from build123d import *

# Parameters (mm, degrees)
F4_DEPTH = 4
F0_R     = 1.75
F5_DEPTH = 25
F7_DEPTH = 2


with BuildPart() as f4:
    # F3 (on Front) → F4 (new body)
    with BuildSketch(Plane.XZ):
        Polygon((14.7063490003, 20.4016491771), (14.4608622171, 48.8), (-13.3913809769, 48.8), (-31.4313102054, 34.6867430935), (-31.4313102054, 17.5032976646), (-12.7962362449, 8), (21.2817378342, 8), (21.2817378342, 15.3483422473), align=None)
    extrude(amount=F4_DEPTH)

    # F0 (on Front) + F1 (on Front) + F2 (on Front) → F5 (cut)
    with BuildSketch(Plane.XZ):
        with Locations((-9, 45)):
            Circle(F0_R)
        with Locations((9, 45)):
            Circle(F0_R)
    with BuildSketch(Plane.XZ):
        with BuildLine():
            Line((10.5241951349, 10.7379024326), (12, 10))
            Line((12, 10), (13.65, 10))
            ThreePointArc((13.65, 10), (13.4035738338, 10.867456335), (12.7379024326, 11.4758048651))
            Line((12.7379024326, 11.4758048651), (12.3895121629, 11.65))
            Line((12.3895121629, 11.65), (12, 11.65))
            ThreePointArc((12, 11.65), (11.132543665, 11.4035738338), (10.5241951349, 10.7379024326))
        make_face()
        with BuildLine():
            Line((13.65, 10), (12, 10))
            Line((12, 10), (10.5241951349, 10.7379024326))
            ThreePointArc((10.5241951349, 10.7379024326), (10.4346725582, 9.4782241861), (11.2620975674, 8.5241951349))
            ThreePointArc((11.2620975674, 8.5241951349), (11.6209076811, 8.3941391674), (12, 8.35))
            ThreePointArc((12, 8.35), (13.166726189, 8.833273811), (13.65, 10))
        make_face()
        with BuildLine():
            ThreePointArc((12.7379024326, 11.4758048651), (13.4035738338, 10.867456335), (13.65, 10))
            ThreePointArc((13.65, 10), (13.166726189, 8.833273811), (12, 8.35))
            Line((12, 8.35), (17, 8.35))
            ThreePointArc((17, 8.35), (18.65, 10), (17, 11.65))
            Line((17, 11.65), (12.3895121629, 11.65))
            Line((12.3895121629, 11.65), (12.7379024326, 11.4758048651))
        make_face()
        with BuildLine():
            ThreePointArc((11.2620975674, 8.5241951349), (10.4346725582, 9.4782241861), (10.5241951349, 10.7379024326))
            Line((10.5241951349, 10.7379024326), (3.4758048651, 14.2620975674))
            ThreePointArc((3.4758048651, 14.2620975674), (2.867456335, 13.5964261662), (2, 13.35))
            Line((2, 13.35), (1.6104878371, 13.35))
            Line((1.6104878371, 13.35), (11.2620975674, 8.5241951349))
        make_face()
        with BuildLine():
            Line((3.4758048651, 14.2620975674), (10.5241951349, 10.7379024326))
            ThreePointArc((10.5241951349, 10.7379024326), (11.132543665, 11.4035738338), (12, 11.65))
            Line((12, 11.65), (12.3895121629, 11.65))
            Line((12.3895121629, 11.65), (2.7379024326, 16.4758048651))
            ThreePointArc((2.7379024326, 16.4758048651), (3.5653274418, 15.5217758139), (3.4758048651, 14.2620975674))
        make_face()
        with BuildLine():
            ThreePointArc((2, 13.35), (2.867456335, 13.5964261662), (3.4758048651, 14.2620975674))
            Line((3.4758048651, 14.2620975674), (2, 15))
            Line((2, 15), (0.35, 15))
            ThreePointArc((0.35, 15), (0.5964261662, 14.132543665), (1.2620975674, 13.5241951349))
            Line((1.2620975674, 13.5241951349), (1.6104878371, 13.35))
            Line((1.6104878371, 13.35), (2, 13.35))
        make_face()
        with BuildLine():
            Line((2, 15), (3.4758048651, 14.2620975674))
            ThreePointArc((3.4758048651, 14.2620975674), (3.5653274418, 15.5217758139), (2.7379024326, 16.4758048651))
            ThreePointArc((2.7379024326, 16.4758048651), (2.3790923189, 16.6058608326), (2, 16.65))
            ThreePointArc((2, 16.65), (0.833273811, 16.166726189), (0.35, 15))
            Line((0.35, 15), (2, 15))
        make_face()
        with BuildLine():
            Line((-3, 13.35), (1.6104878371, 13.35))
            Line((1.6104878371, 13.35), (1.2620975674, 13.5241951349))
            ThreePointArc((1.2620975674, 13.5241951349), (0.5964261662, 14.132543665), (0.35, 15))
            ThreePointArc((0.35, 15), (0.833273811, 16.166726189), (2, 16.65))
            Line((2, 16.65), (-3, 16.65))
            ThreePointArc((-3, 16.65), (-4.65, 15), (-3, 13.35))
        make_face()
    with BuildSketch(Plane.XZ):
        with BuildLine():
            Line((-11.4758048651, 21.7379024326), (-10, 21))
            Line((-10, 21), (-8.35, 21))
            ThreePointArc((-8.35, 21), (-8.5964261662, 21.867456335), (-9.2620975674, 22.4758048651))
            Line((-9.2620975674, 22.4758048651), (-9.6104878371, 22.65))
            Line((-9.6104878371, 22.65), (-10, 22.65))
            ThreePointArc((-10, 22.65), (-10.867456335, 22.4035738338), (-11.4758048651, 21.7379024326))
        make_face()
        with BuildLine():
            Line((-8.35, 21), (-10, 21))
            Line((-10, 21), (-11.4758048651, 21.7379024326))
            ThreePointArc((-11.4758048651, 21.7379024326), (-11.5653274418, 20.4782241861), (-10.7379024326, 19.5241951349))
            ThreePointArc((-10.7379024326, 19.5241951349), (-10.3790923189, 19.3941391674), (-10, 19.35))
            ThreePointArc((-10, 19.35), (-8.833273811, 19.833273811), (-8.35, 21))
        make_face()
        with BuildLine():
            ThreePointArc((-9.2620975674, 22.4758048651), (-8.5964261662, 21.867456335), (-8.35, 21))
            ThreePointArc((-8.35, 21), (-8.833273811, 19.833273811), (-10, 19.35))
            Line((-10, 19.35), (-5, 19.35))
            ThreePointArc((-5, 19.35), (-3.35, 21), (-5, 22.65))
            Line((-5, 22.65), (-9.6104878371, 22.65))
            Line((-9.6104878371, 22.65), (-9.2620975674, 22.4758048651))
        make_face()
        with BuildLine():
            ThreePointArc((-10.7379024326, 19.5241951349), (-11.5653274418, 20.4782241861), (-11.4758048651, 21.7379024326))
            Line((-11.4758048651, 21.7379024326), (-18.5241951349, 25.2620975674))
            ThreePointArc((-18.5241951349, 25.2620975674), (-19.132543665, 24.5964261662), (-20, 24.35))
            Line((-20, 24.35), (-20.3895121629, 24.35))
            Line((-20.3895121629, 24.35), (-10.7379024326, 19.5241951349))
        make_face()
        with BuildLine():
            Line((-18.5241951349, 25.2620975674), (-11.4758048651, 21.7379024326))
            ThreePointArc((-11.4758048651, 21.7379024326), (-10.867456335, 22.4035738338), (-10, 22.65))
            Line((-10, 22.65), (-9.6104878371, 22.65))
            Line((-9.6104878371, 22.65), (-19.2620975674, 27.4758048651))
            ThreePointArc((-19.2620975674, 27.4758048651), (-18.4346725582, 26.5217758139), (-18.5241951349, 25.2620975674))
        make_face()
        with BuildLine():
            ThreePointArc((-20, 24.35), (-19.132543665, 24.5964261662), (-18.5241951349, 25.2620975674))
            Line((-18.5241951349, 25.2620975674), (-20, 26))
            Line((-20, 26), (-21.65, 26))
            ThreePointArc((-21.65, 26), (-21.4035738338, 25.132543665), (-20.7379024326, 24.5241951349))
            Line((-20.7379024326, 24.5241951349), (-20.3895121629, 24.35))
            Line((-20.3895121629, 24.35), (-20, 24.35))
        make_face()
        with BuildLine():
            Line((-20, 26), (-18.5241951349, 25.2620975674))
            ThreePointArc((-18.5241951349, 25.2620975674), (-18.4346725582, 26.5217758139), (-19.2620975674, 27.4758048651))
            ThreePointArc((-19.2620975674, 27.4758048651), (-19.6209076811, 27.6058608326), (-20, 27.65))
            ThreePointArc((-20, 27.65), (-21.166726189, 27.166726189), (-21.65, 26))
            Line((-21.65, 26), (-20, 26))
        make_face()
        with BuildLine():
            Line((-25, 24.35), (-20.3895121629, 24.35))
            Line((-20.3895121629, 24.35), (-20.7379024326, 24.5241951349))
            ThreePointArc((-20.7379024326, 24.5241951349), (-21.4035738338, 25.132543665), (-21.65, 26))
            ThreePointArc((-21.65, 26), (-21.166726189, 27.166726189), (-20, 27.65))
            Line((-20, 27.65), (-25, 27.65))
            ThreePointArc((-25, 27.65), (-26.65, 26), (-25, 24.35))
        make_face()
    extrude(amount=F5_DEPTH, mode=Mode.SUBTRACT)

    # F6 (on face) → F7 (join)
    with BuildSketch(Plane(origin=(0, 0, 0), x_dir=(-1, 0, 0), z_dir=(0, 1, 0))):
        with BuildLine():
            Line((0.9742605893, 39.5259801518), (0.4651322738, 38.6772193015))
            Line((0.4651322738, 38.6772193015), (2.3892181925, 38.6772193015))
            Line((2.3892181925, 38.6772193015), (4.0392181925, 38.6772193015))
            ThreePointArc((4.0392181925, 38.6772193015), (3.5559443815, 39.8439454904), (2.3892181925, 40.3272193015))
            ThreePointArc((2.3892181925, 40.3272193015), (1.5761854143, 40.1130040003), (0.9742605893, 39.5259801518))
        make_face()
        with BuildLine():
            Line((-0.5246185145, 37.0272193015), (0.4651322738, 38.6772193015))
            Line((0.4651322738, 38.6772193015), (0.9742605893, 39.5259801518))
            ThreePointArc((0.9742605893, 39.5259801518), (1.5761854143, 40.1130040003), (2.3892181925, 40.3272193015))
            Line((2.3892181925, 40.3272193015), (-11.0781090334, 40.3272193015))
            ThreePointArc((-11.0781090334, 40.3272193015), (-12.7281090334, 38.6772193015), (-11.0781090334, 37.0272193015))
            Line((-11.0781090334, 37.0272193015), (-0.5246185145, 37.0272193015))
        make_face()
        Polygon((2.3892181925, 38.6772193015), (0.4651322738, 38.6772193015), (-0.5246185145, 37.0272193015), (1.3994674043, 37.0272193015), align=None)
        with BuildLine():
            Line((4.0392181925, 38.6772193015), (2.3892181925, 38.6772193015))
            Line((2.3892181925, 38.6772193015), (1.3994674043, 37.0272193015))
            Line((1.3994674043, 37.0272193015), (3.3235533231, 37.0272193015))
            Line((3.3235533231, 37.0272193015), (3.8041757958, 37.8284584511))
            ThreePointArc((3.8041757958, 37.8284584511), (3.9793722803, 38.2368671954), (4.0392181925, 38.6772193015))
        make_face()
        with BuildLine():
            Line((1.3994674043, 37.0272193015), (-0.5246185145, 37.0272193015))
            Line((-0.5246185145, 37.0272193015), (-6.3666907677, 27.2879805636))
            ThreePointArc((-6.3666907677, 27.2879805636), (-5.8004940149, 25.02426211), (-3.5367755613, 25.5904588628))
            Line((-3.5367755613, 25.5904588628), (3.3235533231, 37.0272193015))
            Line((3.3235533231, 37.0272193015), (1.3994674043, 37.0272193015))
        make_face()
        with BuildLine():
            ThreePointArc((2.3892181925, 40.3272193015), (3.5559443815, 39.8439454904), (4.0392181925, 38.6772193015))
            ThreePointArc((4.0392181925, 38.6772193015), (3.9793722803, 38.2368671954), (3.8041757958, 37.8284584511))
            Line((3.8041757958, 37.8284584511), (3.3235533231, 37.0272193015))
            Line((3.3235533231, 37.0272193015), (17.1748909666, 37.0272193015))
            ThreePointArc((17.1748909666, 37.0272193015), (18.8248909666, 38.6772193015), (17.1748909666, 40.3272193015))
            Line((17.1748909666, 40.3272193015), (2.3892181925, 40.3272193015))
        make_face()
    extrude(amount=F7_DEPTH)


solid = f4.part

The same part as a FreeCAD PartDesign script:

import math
import FreeCAD as App
import Part
import Sketcher

V = App.Vector
Q = App.Units.Quantity

doc = App.newDocument("Part")
body = doc.addObject("PartDesign::Body", "Body")

# Sketch on XZ plane
sketch1 = doc.addObject("Sketcher::SketchObject", "Sketch")
body.addObject(sketch1)
sketch1.AttachmentSupport = (doc.XZ_Plane, [""])
sketch1.MapMode = "FlatFace"
sketch1.addGeometry([
    Part.LineSegment(V(15, 20, 0), V(14, 49, 0)),  # 0
    Part.LineSegment(V(14, 49, 0), V(-13, 49, 0)),  # 1
    Part.LineSegment(V(-13, 49, 0), V(-31, 35, 0)),  # 2
    Part.LineSegment(V(-31, 35, 0), V(-31, 18, 0)),  # 3
    Part.LineSegment(V(-31, 18, 0), V(-13, 8, 0)),  # 4
    Part.LineSegment(V(-13, 8, 0), V(21, 8, 0)),  # 5
    Part.LineSegment(V(21, 8, 0), V(21, 15, 0)),  # 6
    Part.LineSegment(V(21, 15, 0), V(15, 20, 0)),  # 7
], False)
sketch1.addConstraint([
    Sketcher.Constraint("Coincident", 0, 2, 1, 1),
    Sketcher.Constraint("Coincident", 1, 2, 2, 1),
    Sketcher.Constraint("Coincident", 2, 2, 3, 1),
    Sketcher.Constraint("Coincident", 3, 2, 4, 1),
    Sketcher.Constraint("Coincident", 4, 2, 5, 1),
    Sketcher.Constraint("Coincident", 5, 2, 6, 1),
    Sketcher.Constraint("Coincident", 6, 2, 7, 1),
    Sketcher.Constraint("Coincident", 7, 2, 0, 1),
    Sketcher.Constraint("Horizontal", 1),
    Sketcher.Constraint("Vertical", 3),
    Sketcher.Constraint("Horizontal", 5),
    Sketcher.Constraint("Vertical", 6),
    Sketcher.Constraint("DistanceY", -1, 1, 4, 2, Q("8 mm")),
    Sketcher.Constraint("DistanceY", -1, 1, 0, 2, Q("48.8 mm")),
    Sketcher.Constraint("DistanceX", 4, 2, 0, 2, Q("27.257098 mm")),
    Sketcher.Constraint("Distance", 0, Q("28.399412 mm")),
    Sketcher.Constraint("Distance", 2, Q("22.904652 mm")),
    Sketcher.Constraint("Distance", 4, Q("20.918381 mm")),
    Sketcher.Constraint("DistanceX", 1, 2, 1, 1, Q("27.852243 mm")),
    Sketcher.Constraint("DistanceX", 5, 1, 5, 2, Q("34.077974 mm")),
    Sketcher.Constraint("DistanceY", 3, 2, 3, 1, Q("17.183445 mm")),
    Sketcher.Constraint("DistanceY", 6, 1, 6, 2, Q("7.348342 mm")),
    Sketcher.Constraint("DistanceX", 1, 2, -1, 1, Q("13.391381 mm")),
    Sketcher.Constraint("DistanceX", -1, 1, 7, 2, Q("14.706349 mm")),
])
pad1 = doc.addObject("PartDesign::Pad", "Pad")
body.addObject(pad1)
pad1.Profile = sketch1
pad1.Length = 4

# Sketch on XZ plane
sketch2 = doc.addObject("Sketcher::SketchObject", "Sketch001")
body.addObject(sketch2)
sketch2.AttachmentSupport = (doc.XZ_Plane, [""])
sketch2.MapMode = "FlatFace"
sketch2.addGeometry([
    Part.Circle(V(-9, 45, 0), V(0, 0, 1), 1.8),  # 0
    Part.Circle(V(9, 45, 0), V(0, 0, 1), 1.8),  # 1
    Part.LineSegment(V(1.6, 13.3, 0), V(11.3, 8.5, 0)),  # 2
    Part.ArcOfCircle(Part.Circle(V(12, 10, 0), V(0, 0, 1), 1.6), math.radians(-117), math.radians(-90)),  # 3
    Part.LineSegment(V(12, 8.3, 0), V(17, 8.3, 0)),  # 4
    Part.ArcOfCircle(Part.Circle(V(17, 10, 0), V(0, 0, 1), 1.6), math.radians(-90), math.radians(90)),  # 5
    Part.LineSegment(V(17, 11.7, 0), V(12.4, 11.7, 0)),  # 6
    Part.LineSegment(V(12.4, 11.7, 0), V(2.7, 16.5, 0)),  # 7
    Part.ArcOfCircle(Part.Circle(V(2, 15, 0), V(0, 0, 1), 1.6), math.radians(63), math.radians(90)),  # 8
    Part.LineSegment(V(2, 16.6, 0), V(-3, 16.6, 0)),  # 9
    Part.ArcOfCircle(Part.Circle(V(-3, 15, 0), V(0, 0, 1), 1.6), math.radians(90), math.radians(270)),  # 10
    Part.LineSegment(V(-3, 13.3, 0), V(1.6, 13.3, 0)),  # 11
    Part.LineSegment(V(-20.4, 24.4, 0), V(-10.7, 19.5, 0)),  # 12
    Part.ArcOfCircle(Part.Circle(V(-10, 21, 0), V(0, 0, 1), 1.6), math.radians(-117), math.radians(-90)),  # 13
    Part.LineSegment(V(-10, 19.4, 0), V(-5, 19.4, 0)),  # 14
    Part.ArcOfCircle(Part.Circle(V(-5, 21, 0), V(0, 0, 1), 1.6), math.radians(-90), math.radians(90)),  # 15
    Part.LineSegment(V(-5, 22.6, 0), V(-9.6, 22.6, 0)),  # 16
    Part.LineSegment(V(-9.6, 22.6, 0), V(-19.3, 27.5, 0)),  # 17
    Part.ArcOfCircle(Part.Circle(V(-20, 26, 0), V(0, 0, 1), 1.6), math.radians(63), math.radians(90)),  # 18
    Part.LineSegment(V(-20, 27.6, 0), V(-25, 27.6, 0)),  # 19
    Part.ArcOfCircle(Part.Circle(V(-25, 26, 0), V(0, 0, 1), 1.6), math.radians(90), math.radians(270)),  # 20
    Part.LineSegment(V(-25, 24.4, 0), V(-20.4, 24.4, 0)),  # 21
], False)
sketch2.addConstraint([
    Sketcher.Constraint("Tangent", 2, 2, 3, 1),
    Sketcher.Constraint("Tangent", 3, 2, 4, 1),
    Sketcher.Constraint("Tangent", 4, 2, 5, 1),
    Sketcher.Constraint("Tangent", 5, 2, 6, 1),
    Sketcher.Constraint("Coincident", 6, 2, 7, 1),
    Sketcher.Constraint("Tangent", 7, 2, 8, 1),
    Sketcher.Constraint("Tangent", 8, 2, 9, 1),
    Sketcher.Constraint("Tangent", 9, 2, 10, 1),
    Sketcher.Constraint("Tangent", 10, 2, 11, 1),
    Sketcher.Constraint("Coincident", 11, 2, 2, 1),
    Sketcher.Constraint("Tangent", 12, 2, 13, 1),
    Sketcher.Constraint("Tangent", 13, 2, 14, 1),
    Sketcher.Constraint("Tangent", 14, 2, 15, 1),
    Sketcher.Constraint("Tangent", 15, 2, 16, 1),
    Sketcher.Constraint("Coincident", 16, 2, 17, 1),
    Sketcher.Constraint("Tangent", 17, 2, 18, 1),
    Sketcher.Constraint("Tangent", 18, 2, 19, 1),
    Sketcher.Constraint("Tangent", 19, 2, 20, 1),
    Sketcher.Constraint("Tangent", 20, 2, 21, 1),
    Sketcher.Constraint("Coincident", 21, 2, 12, 1),
    Sketcher.Constraint("Horizontal", 4),
    Sketcher.Constraint("Horizontal", 6),
    Sketcher.Constraint("Horizontal", 9),
    Sketcher.Constraint("Horizontal", 11),
    Sketcher.Constraint("Horizontal", 14),
    Sketcher.Constraint("Horizontal", 16),
    Sketcher.Constraint("Horizontal", 19),
    Sketcher.Constraint("Horizontal", 21),
    Sketcher.Constraint("Equal", 0, 1),
    Sketcher.Constraint("Equal", 3, 5),
    Sketcher.Constraint("Equal", 5, 8),
    Sketcher.Constraint("Equal", 8, 10),
    Sketcher.Constraint("Equal", 10, 13),
    Sketcher.Constraint("Equal", 13, 15),
    Sketcher.Constraint("Equal", 15, 18),
    Sketcher.Constraint("Equal", 18, 20),
    Sketcher.Constraint("Symmetric", 0, 3, 1, 3, -2),
    Sketcher.Constraint("Parallel", 2, 7),
    Sketcher.Constraint("Parallel", 7, 12),
    Sketcher.Constraint("Parallel", 12, 17),
    Sketcher.Constraint("Equal", 4, 9),
    Sketcher.Constraint("Equal", 9, 14),
    Sketcher.Constraint("Equal", 11, 16),
    Sketcher.Constraint("Equal", 14, 19),
    Sketcher.Constraint("Equal", 7, 12),
    Sketcher.Constraint("Diameter", 0, Q("3.5 mm")),
    Sketcher.Constraint("DistanceX", 4, 1, 4, 2, Q("5 mm")),
    Sketcher.Constraint("Radius", 3, Q("1.65 mm")),
    Sketcher.Constraint("DistanceX", 0, 3, -1, 1, Q("9 mm")),
    Sketcher.Constraint("DistanceY", -1, 1, 0, 3, Q("45 mm")),
    Sketcher.Constraint("DistanceX", -1, 1, 3, 3, Q("12 mm")),
    Sketcher.Constraint("DistanceY", -1, 1, 3, 3, Q("10 mm")),
    Sketcher.Constraint("DistanceX", -1, 1, 8, 3, Q("2 mm")),
    Sketcher.Constraint("DistanceY", -1, 1, 8, 3, Q("15 mm")),
    Sketcher.Constraint("DistanceX", 13, 3, -1, 1, Q("10 mm")),
    Sketcher.Constraint("DistanceY", -1, 1, 13, 3, Q("21 mm")),
    Sketcher.Constraint("DistanceX", 6, 2, 6, 1, Q("4.610488 mm")),
])
pocket1 = doc.addObject("PartDesign::Pocket", "Pocket")
body.addObject(pocket1)
pocket1.Profile = sketch2
pocket1.Length = 25
pocket1.Reversed = True

# Sketch on XZ plane
sketch3 = doc.addObject("Sketcher::SketchObject", "Sketch002")
body.addObject(sketch3)
sketch3.AttachmentSupport = (doc.XZ_Plane, [""])
sketch3.MapMode = "FlatFace"
sketch3.addGeometry([
    Part.ArcOfCircle(Part.Circle(V(11.1, 38.7, 0), V(0, 0, 1), 1.6), math.radians(-90), math.radians(90)),  # 0
    Part.LineSegment(V(11.1, 37, 0), V(0.5, 37, 0)),  # 1
    Part.LineSegment(V(0.5, 37, 0), V(6.4, 27.3, 0)),  # 2
    Part.ArcOfCircle(Part.Circle(V(5, 26.4, 0), V(0, 0, 1), 1.6), math.radians(-149), math.radians(31)),  # 3
    Part.LineSegment(V(3.5, 25.6, 0), V(-3.3, 37, 0)),  # 4
    Part.LineSegment(V(-3.3, 37, 0), V(-17.2, 37, 0)),  # 5
    Part.ArcOfCircle(Part.Circle(V(-17.2, 38.7, 0), V(0, 0, 1), 1.6), math.radians(90), math.radians(270)),  # 6
    Part.LineSegment(V(-17.2, 40.3, 0), V(11.1, 40.3, 0)),  # 7
], False)
sketch3.addConstraint([
    Sketcher.Constraint("Tangent", 0, 1, 1, 1),
    Sketcher.Constraint("Coincident", 1, 2, 2, 1),
    Sketcher.Constraint("Tangent", 2, 2, 3, 2),
    Sketcher.Constraint("Tangent", 3, 1, 4, 1),
    Sketcher.Constraint("Coincident", 4, 2, 5, 1),
    Sketcher.Constraint("Tangent", 5, 2, 6, 2),
    Sketcher.Constraint("Tangent", 6, 1, 7, 1),
    Sketcher.Constraint("Tangent", 7, 2, 0, 2),
    Sketcher.Constraint("Horizontal", 1),
    Sketcher.Constraint("Horizontal", 5),
    Sketcher.Constraint("Horizontal", 7),
    Sketcher.Constraint("Equal", 0, 3),
    Sketcher.Constraint("Equal", 3, 6),
    Sketcher.Constraint("Parallel", 2, 4),
    Sketcher.Constraint("Radius", 0, Q("1.65 mm")),
    Sketcher.Constraint("DistanceX", 7, 1, 7, 2, Q("28.253 mm")),
    Sketcher.Constraint("DistanceY", 3, 3, 0, 3, Q("12.238 mm")),
    Sketcher.Constraint("DistanceX", 1, 2, 1, 1, Q("10.553491 mm")),
    Sketcher.Constraint("Distance", 2, Q("11.35705 mm")),
    Sketcher.Constraint("DistanceX", -1, 1, 0, 3, Q("11.078109 mm")),
    Sketcher.Constraint("DistanceY", -1, 1, 0, 3, Q("38.677219 mm")),
])
pad2 = doc.addObject("PartDesign::Pad", "Pad001")
body.addObject(pad2)
pad2.Profile = sketch3
pad2.Length = 2
pad2.Reversed = True

doc.recompute()
